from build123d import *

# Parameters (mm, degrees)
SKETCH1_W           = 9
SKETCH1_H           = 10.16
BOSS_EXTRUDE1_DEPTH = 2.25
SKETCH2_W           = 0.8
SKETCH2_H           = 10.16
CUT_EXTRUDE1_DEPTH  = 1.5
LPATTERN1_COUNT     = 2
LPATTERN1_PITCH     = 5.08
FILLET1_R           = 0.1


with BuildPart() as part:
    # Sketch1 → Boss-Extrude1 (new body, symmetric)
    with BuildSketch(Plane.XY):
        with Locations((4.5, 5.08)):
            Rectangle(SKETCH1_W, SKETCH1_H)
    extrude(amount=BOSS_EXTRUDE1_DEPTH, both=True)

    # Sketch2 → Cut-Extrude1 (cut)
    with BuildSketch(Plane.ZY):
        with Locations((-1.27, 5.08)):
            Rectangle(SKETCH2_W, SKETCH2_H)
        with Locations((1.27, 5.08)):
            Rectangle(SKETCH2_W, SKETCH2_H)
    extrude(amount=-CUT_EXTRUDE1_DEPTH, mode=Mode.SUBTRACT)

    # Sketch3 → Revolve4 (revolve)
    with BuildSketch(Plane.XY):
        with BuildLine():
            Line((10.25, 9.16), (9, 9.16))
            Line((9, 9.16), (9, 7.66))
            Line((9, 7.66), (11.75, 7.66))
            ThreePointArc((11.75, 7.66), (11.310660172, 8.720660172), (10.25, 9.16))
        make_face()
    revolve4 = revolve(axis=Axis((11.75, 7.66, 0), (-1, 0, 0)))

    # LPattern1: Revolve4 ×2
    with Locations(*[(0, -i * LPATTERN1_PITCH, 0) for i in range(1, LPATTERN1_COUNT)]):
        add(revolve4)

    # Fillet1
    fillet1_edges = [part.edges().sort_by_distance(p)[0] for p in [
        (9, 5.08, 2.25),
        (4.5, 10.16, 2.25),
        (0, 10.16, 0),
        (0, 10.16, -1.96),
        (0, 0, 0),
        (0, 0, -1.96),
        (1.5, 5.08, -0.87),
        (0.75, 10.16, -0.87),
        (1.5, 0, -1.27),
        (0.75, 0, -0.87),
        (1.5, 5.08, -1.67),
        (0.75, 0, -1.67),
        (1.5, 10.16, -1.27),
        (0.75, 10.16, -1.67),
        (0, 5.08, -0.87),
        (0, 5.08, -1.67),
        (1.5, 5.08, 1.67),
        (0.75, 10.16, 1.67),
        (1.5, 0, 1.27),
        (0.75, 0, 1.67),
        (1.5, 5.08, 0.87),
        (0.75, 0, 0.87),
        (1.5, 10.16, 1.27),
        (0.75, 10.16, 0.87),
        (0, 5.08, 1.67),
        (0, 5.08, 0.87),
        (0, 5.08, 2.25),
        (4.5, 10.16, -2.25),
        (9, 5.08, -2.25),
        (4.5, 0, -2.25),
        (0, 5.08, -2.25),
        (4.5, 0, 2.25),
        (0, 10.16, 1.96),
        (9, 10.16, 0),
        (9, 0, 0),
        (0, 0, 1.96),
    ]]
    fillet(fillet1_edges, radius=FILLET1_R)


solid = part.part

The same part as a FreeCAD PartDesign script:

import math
import FreeCAD as App
import Part
import Sketcher


def edges_at(feature, points):
    """Names of the edges that pass closest to the given points."""
    edges = feature.Shape.Edges
    near = lambda p: min(range(len(edges)), key=lambda i: edges[i].distToShape(Part.Vertex(*p))[0])
    return sorted({f"Edge{near(p) + 1}" for p in points})

doc = App.newDocument("Part")
body = doc.addObject("PartDesign::Body", "Body")

# Sketch on XY plane
sketch1 = body.newObject("Sketcher::SketchObject", "Sketch")
sketch1.AttachmentSupport = (doc.getObject("XY_Plane"), [""])
sketch1.MapMode = "FlatFace"
sketch1.addGeometry(Part.LineSegment(App.Vector(0, 10, 0), App.Vector(0, 0, 0)), False)
sketch1.addGeometry(Part.LineSegment(App.Vector(0, 0, 0), App.Vector(9, 0, 0)), False)
sketch1.addGeometry(Part.LineSegment(App.Vector(9, 0, 0), App.Vector(9, 10, 0)), False)
sketch1.addGeometry(Part.LineSegment(App.Vector(9, 10, 0), App.Vector(0, 10, 0)), False)
sketch1.addConstraint(Sketcher.Constraint("Coincident", 0, 2, 1, 1))
sketch1.addConstraint(Sketcher.Constraint("Coincident", 1, 2, 2, 1))
sketch1.addConstraint(Sketcher.Constraint("Coincident", 2, 2, 3, 1))
sketch1.addConstraint(Sketcher.Constraint("Coincident", 3, 2, 0, 1))
sketch1.addConstraint(Sketcher.Constraint("Vertical", 0))
sketch1.addConstraint(Sketcher.Constraint("Horizontal", 1))
sketch1.addConstraint(Sketcher.Constraint("Vertical", 2))
sketch1.addConstraint(Sketcher.Constraint("Horizontal", 3))
sketch1.addConstraint(Sketcher.Constraint("Coincident", 0, 2, -1, 1))
sketch1.addConstraint(Sketcher.Constraint("DistanceX", 1, 1, 1, 2, 9.0))
sketch1.addConstraint(Sketcher.Constraint("DistanceY", 0, 2, 0, 1, 10.16))
pad1 = body.newObject("PartDesign::Pad", "Pad")
pad1.Profile = sketch1
pad1.Length = 4.5
pad1.Midplane = True

# Sketch on YZ plane
sketch2 = body.newObject("Sketcher::SketchObject", "Sketch001")
sketch2.AttachmentSupport = (doc.getObject("YZ_Plane"), [""])
sketch2.MapMode = "FlatFace"
sketch2.addGeometry(Part.LineSegment(App.Vector(10.2, -1.7, 0), App.Vector(0, -1.7, 0)), False)
sketch2.addGeometry(Part.LineSegment(App.Vector(0, -1.7, 0), App.Vector(0, -0.9, 0)), False)
sketch2.addGeometry(Part.LineSegment(App.Vector(0, -0.9, 0), App.Vector(10.2, -0.9, 0)), False)
sketch2.addGeometry(Part.LineSegment(App.Vector(10.2, -0.9, 0), App.Vector(10.2, -1.7, 0)), False)
sketch2.addGeometry(Part.LineSegment(App.Vector(10.2, 0.9, 0), App.Vector(0, 0.9, 0)), False)
sketch2.addGeometry(Part.LineSegment(App.Vector(0, 0.9, 0), App.Vector(0, 1.7, 0)), False)
sketch2.addGeometry(Part.LineSegment(App.Vector(0, 1.7, 0), App.Vector(10.2, 1.7, 0)), False)
sketch2.addGeometry(Part.LineSegment(App.Vector(10.2, 1.7, 0), App.Vector(10.2, 0.9, 0)), False)
sketch2.addConstraint(Sketcher.Constraint("Coincident", 0, 2, 1, 1))
sketch2.addConstraint(Sketcher.Constraint("Coincident", 1, 2, 2, 1))
sketch2.addConstraint(Sketcher.Constraint("Coincident", 2, 2, 3, 1))
sketch2.addConstraint(Sketcher.Constraint("Coincident", 3, 2, 0, 1))
sketch2.addConstraint(Sketcher.Constraint("Coincident", 4, 2, 5, 1))
sketch2.addConstraint(Sketcher.Constraint("Coincident", 5, 2, 6, 1))
sketch2.addConstraint(Sketcher.Constraint("Coincident", 6, 2, 7, 1))
sketch2.addConstraint(Sketcher.Constraint("Coincident", 7, 2, 4, 1))
sketch2.addConstraint(Sketcher.Constraint("Horizontal", 0))
sketch2.addConstraint(Sketcher.Constraint("Vertical", 1))
sketch2.addConstraint(Sketcher.Constraint("Horizontal", 2))
sketch2.addConstraint(Sketcher.Constraint("Vertical", 3))
sketch2.addConstraint(Sketcher.Constraint("Horizontal", 4))
sketch2.addConstraint(Sketcher.Constraint("Vertical", 5))
sketch2.addConstraint(Sketcher.Constraint("Horizontal", 6))
sketch2.addConstraint(Sketcher.Constraint("Vertical", 7))
sketch2.addConstraint(Sketcher.Constraint("Symmetric", 1, 2, 4, 2, -1, 1))
sketch2.addConstraint(Sketcher.Constraint("Symmetric", 0, 2, 5, 2, -1))
sketch2.addConstraint(Sketcher.Constraint("Vertical", 3, 2, 6, 2))
sketch2.addConstraint(Sketcher.Constraint("DistanceY", 1, 1, 1, 2, 0.8))
sketch2.addConstraint(Sketcher.Constraint("DistanceX", 0, 2, 0, 1, 10.16))
sketch2.addConstraint(Sketcher.Constraint("DistanceY", 0, 2, -1, 1, 1.67))
pocket1 = body.newObject("PartDesign::Pocket", "Pocket")
pocket1.Profile = sketch2
pocket1.Length = 1.5
pocket1.Reversed = True

# Sketch on XY plane
sketch3 = body.newObject("Sketcher::SketchObject", "Sketch002")
sketch3.AttachmentSupport = (doc.getObject("XY_Plane"), [""])
sketch3.MapMode = "FlatFace"
sketch3.addGeometry(Part.LineSegment(App.Vector(10.2, 9.2, 0), App.Vector(9, 9.2, 0)), False)
sketch3.addGeometry(Part.LineSegment(App.Vector(9, 9.2, 0), App.Vector(9, 7.7, 0)), False)
sketch3.addGeometry(Part.LineSegment(App.Vector(9, 7.7, 0), App.Vector(11.8, 7.7, 0)), False)
sketch3.addGeometry(Part.ArcOfCircle(Part.Circle(App.Vector(10.3, 7.7, 0), App.Vector(0, 0, 1), 1.5), math.radians(0), math.radians(90)), False)
sketch3.addGeometry(Part.LineSegment(App.Vector(11.8, 7.7, 0), App.Vector(9, 7.7, 0)), True)  # axis
sketch3.addConstraint(Sketcher.Constraint("Coincident", 0, 2, 1, 1))
sketch3.addConstraint(Sketcher.Constraint("Coincident", 1, 2, 2, 1))
sketch3.addConstraint(Sketcher.Constraint("Coincident", 2, 2, 3, 1))
sketch3.addConstraint(Sketcher.Constraint("Tangent", 3, 2, 0, 1))
sketch3.addConstraint(Sketcher.Constraint("Horizontal", 0))
sketch3.addConstraint(Sketcher.Constraint("Vertical", 1))
sketch3.addConstraint(Sketcher.Constraint("Horizontal", 2))
sketch3.addConstraint(Sketcher.Constraint("Horizontal", 4))
sketch3.addConstraint(Sketcher.Constraint("Coincident", 4, 1, 2, 2))
sketch3.addConstraint(Sketcher.Constraint("Horizontal", 3, 3, 1, 2))
sketch3.addConstraint(Sketcher.Constraint("Vertical", 0, 2, 4, 2))
sketch3.addConstraint(Sketcher.Constraint("Radius", 3, 1.5))
sketch3.addConstraint(Sketcher.Constraint("DistanceX", -1, 1, 0, 2, 9.0))
sketch3.addConstraint(Sketcher.Constraint("DistanceX", 0, 2, 0, 1, 1.25))
sketch3.addConstraint(Sketcher.Constraint("DistanceY", -1, 1, 3, 3, 7.66))
revolution = body.newObject("PartDesign::Revolution", "Revolution")
revolution.Profile = sketch3
revolution.ReferenceAxis = (sketch3, ["Axis0"])
revolution.Angle = 360
doc.recompute()

linearpattern = body.newObject("PartDesign::LinearPattern", "LinearPattern")
linearpattern.Originals = [revolution]
linearpattern.Direction = (doc.getObject("Y_Axis"), [""])
linearpattern.Mode = "offset"
linearpattern.Offset = 5.08
linearpattern.Occurrences = 2
linearpattern.Reversed = True
body.Tip = linearpattern
doc.recompute()

fillet = body.newObject("PartDesign::Fillet", "Fillet")
fillet.Base = (linearpattern, edges_at(linearpattern, [
    (9, 5.08, 2.25),
    (4.5, 10.16, 2.25),
    (0, 10.16, 0),
    (0, 10.16, -1.96),
    (0, 0, 0),
    (0, 0, -1.96),
    (1.5, 5.08, -0.87),
    (0.75, 10.16, -0.87),
    (1.5, 0, -1.27),
    (0.75, 0, -0.87),
    (1.5, 5.08, -1.67),
    (0.75, 0, -1.67),
    (1.5, 10.16, -1.27),
    (0.75, 10.16, -1.67),
    (0, 5.08, -0.87),
    (0, 5.08, -1.67),
    (1.5, 5.08, 1.67),
    (0.75, 10.16, 1.67),
    (1.5, 0, 1.27),
    (0.75, 0, 1.67),
    (1.5, 5.08, 0.87),
    (0.75, 0, 0.87),
    (1.5, 10.16, 1.27),
    (0.75, 10.16, 0.87),
    (0, 5.08, 1.67),
    (0, 5.08, 0.87),
    (0, 5.08, 2.25),
    (4.5, 10.16, -2.25),
    (9, 5.08, -2.25),
    (4.5, 0, -2.25),
    (0, 5.08, -2.25),
    (4.5, 0, 2.25),
    (0, 10.16, 1.96),
    (9, 10.16, 0),
    (9, 0, 0),
    (0, 0, 1.96),
]))
fillet.Radius = 0.1

doc.recompute()
